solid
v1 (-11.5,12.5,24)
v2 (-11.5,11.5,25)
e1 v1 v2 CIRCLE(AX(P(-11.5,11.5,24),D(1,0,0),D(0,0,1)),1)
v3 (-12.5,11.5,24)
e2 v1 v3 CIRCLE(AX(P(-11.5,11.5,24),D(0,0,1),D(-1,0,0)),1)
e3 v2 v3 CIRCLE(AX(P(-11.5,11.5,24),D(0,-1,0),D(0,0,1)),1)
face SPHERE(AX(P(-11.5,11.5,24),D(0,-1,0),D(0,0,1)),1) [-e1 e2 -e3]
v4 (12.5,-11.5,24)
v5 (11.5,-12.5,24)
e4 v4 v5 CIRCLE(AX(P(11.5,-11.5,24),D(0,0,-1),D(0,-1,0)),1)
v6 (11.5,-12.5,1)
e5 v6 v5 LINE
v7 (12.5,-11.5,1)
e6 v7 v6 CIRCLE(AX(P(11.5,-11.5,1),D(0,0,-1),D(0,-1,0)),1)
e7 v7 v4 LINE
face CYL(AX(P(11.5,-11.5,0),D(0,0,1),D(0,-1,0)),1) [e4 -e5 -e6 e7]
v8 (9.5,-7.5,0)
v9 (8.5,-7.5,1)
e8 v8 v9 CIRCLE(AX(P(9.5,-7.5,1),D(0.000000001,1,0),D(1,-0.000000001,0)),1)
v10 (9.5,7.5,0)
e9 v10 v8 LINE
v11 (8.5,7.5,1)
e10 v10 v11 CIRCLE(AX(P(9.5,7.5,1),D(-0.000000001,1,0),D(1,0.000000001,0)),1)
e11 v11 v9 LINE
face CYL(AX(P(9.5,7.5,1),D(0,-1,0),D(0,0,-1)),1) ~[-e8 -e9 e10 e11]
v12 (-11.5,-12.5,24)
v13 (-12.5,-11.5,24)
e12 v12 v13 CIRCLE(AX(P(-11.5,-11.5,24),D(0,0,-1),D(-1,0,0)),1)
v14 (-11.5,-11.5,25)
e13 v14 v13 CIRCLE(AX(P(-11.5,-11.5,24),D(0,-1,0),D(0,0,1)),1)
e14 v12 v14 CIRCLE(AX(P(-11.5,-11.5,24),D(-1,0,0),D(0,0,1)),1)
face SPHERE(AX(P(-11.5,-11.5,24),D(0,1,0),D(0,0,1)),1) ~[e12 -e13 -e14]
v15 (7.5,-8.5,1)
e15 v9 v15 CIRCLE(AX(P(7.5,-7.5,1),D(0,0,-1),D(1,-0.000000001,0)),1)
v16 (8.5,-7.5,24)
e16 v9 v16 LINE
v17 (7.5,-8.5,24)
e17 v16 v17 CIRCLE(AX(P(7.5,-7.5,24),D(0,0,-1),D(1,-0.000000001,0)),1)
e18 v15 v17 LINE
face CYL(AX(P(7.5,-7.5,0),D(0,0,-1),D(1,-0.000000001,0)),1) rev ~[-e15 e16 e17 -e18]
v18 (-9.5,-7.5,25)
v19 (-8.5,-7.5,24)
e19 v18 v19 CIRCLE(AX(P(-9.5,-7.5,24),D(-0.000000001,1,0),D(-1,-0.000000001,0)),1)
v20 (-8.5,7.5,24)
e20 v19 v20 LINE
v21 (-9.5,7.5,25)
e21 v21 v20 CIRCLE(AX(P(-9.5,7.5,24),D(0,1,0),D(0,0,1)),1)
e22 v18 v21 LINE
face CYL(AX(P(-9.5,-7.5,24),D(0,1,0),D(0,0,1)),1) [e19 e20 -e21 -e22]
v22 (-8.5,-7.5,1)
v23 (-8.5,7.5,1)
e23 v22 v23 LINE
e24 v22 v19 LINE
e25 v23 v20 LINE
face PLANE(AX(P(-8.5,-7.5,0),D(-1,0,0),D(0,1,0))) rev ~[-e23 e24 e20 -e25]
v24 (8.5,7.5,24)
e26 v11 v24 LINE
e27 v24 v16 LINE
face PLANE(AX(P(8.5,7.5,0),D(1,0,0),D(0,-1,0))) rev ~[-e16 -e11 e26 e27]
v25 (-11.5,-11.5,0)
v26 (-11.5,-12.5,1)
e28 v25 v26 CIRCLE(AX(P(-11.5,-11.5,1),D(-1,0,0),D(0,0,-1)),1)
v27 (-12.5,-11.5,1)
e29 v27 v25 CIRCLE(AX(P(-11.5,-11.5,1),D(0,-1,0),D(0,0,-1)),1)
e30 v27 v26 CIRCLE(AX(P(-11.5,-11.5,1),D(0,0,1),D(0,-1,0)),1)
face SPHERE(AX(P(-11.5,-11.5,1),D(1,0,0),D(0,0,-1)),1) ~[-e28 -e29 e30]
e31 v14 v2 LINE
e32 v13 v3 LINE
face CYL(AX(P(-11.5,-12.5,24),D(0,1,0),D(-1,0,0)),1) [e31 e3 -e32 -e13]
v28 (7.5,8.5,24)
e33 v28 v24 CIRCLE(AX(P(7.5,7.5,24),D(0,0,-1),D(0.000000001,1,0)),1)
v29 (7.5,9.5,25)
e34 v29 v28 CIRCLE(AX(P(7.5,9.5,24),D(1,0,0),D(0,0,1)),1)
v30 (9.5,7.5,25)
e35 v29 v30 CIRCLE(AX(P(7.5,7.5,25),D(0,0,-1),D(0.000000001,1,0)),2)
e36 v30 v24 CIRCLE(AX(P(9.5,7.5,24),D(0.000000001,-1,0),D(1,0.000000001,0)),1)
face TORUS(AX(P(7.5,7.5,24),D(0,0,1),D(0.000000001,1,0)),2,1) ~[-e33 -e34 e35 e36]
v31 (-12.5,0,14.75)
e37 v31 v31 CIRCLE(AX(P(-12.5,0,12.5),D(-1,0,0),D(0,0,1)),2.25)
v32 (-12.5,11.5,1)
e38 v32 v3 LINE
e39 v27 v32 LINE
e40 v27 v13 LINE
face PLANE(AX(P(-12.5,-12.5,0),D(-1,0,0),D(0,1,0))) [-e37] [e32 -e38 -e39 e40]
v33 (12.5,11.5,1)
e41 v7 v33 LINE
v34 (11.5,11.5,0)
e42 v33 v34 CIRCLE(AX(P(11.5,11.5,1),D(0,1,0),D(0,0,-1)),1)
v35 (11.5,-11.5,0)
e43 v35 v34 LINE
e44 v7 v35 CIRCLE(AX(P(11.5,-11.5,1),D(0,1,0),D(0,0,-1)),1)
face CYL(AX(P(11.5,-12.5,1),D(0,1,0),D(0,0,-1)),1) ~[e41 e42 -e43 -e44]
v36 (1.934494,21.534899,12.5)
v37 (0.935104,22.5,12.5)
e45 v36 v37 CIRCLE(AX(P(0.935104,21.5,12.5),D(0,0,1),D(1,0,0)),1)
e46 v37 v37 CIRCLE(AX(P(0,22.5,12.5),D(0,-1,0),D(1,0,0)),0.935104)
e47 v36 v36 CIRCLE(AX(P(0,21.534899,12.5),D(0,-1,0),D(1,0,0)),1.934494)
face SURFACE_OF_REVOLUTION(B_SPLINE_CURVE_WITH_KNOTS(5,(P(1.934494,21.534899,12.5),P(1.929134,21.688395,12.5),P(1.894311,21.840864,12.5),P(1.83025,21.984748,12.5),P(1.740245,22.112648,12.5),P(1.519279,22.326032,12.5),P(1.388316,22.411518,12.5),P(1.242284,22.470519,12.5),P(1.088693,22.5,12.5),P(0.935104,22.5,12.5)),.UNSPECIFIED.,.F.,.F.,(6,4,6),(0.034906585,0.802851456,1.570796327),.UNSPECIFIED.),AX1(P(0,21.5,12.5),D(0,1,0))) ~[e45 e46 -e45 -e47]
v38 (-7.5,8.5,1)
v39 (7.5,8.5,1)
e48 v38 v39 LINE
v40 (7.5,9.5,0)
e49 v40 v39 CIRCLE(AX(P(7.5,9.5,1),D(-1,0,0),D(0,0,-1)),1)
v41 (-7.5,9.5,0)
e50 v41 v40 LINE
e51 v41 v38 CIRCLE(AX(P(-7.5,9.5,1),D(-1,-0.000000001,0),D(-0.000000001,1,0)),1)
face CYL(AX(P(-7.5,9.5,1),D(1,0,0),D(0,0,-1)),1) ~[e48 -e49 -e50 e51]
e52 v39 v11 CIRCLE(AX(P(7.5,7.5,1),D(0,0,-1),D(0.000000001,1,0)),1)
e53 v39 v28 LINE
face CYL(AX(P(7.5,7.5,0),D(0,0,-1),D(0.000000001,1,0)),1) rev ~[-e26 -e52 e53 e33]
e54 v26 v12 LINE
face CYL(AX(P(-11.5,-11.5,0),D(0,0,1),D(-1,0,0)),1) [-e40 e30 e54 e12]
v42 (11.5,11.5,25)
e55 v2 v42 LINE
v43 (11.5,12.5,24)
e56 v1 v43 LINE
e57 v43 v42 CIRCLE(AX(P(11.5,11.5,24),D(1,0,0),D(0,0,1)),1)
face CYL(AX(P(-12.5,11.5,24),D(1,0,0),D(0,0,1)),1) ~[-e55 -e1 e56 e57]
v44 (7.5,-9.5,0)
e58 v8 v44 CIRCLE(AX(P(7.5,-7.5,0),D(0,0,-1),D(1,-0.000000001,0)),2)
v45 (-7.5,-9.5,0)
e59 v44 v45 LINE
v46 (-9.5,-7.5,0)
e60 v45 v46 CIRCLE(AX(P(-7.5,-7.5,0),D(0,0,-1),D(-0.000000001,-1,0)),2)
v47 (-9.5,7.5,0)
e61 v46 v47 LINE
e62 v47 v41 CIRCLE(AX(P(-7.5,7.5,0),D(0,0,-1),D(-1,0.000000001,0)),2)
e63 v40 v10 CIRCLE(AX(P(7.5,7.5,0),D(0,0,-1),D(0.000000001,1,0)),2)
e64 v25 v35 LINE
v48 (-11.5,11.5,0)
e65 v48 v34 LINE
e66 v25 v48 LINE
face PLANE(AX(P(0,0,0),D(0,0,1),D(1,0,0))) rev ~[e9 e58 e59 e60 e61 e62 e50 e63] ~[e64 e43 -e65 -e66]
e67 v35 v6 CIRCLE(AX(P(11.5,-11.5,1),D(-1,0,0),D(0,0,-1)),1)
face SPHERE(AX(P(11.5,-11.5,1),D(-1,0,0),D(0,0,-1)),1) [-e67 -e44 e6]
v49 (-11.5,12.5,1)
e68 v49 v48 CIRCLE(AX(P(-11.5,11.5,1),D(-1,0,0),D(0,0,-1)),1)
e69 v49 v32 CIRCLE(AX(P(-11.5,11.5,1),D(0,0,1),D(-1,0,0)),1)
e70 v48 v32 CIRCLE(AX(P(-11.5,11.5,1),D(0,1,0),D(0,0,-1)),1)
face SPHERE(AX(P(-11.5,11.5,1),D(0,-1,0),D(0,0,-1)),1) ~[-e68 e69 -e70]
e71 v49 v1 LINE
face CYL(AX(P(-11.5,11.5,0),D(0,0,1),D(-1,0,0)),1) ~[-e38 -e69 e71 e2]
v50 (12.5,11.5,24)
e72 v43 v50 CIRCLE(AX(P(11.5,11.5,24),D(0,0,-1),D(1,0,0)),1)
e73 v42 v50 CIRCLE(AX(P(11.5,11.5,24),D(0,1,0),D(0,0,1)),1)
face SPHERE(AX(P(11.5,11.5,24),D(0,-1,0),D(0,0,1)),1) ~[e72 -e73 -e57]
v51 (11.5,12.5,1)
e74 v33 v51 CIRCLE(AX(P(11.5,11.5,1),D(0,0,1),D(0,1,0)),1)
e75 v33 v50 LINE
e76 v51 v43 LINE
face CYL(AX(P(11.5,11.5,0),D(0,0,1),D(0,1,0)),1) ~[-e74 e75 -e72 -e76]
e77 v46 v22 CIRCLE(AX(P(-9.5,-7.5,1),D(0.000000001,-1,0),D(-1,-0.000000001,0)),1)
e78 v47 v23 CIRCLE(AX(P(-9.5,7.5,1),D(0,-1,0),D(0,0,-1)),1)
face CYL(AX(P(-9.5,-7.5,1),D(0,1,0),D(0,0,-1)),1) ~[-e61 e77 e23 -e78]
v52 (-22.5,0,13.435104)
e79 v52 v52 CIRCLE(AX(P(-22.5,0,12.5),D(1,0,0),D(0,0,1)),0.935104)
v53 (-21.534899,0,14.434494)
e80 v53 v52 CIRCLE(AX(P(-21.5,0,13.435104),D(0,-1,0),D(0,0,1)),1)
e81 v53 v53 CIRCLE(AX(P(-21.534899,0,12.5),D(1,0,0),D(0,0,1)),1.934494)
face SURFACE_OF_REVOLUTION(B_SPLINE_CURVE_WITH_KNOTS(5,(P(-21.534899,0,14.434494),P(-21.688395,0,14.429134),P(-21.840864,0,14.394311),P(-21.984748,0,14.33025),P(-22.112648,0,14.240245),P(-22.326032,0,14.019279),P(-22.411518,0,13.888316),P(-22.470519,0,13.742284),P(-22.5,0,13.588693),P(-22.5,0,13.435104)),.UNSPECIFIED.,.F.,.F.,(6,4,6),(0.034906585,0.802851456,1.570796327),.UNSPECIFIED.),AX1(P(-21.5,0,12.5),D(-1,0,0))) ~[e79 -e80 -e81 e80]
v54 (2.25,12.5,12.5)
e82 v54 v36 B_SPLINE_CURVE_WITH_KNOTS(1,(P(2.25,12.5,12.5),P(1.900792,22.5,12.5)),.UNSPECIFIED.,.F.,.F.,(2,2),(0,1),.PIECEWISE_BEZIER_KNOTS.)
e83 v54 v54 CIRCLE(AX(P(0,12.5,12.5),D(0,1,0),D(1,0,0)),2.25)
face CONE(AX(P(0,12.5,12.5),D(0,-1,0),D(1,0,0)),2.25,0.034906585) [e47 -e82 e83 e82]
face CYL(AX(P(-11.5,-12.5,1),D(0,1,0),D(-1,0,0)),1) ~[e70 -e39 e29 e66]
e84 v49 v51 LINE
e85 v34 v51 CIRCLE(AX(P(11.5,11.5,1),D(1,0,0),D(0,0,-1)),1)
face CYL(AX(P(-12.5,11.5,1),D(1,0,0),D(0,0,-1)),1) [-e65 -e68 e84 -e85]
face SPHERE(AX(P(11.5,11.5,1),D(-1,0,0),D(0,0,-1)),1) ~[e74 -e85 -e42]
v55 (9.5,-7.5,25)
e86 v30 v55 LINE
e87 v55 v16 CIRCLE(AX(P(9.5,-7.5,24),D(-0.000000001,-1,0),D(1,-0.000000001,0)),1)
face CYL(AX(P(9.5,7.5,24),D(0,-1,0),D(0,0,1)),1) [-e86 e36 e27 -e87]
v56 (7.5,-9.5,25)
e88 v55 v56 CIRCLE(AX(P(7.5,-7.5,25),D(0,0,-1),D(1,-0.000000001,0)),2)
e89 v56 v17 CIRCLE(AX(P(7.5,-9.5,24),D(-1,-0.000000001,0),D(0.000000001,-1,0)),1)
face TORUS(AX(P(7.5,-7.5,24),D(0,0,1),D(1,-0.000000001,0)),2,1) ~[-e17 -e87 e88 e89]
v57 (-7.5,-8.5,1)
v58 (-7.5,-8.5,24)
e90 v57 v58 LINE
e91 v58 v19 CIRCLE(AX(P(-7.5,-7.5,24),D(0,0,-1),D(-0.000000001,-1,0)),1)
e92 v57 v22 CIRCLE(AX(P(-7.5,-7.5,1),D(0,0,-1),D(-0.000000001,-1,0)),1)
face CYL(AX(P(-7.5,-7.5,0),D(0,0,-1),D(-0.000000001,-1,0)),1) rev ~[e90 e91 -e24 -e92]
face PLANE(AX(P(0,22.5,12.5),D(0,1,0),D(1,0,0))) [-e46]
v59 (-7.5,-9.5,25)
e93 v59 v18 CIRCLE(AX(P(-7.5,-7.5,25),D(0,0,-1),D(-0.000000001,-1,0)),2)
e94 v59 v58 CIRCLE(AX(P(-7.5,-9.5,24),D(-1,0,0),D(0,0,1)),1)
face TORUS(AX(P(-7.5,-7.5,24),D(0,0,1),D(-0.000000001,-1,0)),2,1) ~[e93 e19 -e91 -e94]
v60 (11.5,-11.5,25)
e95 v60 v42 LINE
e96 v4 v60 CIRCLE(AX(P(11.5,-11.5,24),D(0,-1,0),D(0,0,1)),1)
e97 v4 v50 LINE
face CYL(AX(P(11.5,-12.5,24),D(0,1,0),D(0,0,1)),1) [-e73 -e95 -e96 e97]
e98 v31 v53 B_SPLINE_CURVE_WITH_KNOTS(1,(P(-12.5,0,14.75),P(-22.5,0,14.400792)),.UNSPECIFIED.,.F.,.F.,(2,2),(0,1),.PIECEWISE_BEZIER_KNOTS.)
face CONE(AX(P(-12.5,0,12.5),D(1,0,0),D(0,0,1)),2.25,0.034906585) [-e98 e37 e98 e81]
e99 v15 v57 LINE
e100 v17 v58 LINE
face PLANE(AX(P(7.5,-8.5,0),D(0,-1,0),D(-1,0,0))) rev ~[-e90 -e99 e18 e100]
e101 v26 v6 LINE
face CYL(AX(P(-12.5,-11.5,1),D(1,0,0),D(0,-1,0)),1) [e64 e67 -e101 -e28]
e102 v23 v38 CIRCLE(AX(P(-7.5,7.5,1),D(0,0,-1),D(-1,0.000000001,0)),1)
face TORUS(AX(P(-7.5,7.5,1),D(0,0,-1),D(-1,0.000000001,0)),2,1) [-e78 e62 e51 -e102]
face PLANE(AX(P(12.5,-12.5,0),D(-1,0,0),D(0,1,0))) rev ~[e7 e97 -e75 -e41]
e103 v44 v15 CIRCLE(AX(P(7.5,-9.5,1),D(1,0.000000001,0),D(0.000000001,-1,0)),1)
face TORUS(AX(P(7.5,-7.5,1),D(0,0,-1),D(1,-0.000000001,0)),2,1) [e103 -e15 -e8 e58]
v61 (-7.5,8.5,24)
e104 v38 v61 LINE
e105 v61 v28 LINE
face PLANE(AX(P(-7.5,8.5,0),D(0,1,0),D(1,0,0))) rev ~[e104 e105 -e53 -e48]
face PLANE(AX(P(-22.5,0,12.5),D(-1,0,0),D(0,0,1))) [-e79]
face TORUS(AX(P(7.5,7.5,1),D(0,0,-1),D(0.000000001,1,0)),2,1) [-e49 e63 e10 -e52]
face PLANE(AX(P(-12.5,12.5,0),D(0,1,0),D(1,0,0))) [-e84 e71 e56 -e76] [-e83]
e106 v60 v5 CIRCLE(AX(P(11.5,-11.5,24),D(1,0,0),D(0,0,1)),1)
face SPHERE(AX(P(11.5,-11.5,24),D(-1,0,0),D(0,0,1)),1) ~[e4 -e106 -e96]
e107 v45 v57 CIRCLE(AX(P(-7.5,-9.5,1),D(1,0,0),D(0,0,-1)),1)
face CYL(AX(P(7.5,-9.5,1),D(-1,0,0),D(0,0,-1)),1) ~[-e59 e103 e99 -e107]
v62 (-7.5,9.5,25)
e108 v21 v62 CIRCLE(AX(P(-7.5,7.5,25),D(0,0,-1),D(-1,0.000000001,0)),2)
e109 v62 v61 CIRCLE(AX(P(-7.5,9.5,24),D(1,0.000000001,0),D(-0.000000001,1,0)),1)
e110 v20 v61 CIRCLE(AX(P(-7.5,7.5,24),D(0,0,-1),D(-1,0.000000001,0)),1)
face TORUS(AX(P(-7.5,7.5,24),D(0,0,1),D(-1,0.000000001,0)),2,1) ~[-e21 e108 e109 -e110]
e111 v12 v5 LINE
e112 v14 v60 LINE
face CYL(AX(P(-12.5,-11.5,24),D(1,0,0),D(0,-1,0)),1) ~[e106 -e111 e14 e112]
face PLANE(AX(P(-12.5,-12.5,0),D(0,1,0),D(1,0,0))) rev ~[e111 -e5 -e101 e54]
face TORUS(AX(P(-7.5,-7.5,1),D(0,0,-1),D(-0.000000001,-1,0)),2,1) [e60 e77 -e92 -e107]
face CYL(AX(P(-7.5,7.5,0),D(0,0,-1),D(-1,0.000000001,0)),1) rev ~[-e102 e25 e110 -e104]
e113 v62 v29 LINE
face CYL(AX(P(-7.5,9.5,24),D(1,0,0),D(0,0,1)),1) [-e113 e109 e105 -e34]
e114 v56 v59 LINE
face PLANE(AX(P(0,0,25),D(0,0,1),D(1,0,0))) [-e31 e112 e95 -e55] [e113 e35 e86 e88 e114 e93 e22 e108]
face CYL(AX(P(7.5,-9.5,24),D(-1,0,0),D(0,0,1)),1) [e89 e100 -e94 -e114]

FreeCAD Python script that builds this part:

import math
import FreeCAD as App
import Part
import Sketcher

V = App.Vector
Q = App.Units.Quantity


def edges_at(feature, points):
    """Names of the edges that pass closest to the given points."""
    edges = feature.Shape.Edges
    near = lambda p: min(range(len(edges)), key=lambda i: edges[i].distToShape(Part.Vertex(*p))[0])
    return sorted({f"Edge{near(p) + 1}" for p in points})


def add_polygon(sketch, points):
    """Adds a closed chain of lines whose ends are joined by coincident constraints."""
    first, n = sketch.GeometryCount, len(points)
    for a, b in zip(points, points[1:] + points[:1]):
        sketch.addGeometry(Part.LineSegment(App.Vector(*a, 0), App.Vector(*b, 0)), False)
    for i in range(n):
        sketch.addConstraint(Sketcher.Constraint("Coincident", first + i, 2, first + (i + 1) % n, 1))

doc = App.newDocument("Part")
body = doc.addObject("PartDesign::Body", "Body")

sketch1 = body.newObject("Sketcher::SketchObject", "Sketch")
sketch1.AttachmentSupport = (doc.getObject("XY_Plane"), [""])
sketch1.MapMode = "FlatFace"
add_polygon(sketch1, [(-12.5, 12.5), (-12.5, -12.5), (12.5, -12.5), (12.5, 12.5)])
sketch1.addConstraint([
    Sketcher.Constraint("Vertical", 0),
    Sketcher.Constraint("Horizontal", 1),
    Sketcher.Constraint("Vertical", 2),
    Sketcher.Constraint("Horizontal", 3),
    Sketcher.Constraint("Symmetric", 0, 2, 2, 2, -1, 1),
    Sketcher.Constraint("Equal", 3, 0),
    Sketcher.Constraint("DistanceX", 1, 1, 1, 2, Q("25 mm")),
])
pad1 = body.newObject("PartDesign::Pad", "Pad")
pad1.Profile = sketch1
pad1.Length = 25

sketch2 = body.newObject("Sketcher::SketchObject", "Sketch001")
sketch2.AttachmentSupport = (doc.getObject("YZ_Plane"), [""])
sketch2.MapMode = "FlatFace"
sketch2.AttachmentOffset = App.Placement(V(0, 0, -12.5), App.Rotation())
sketch2.addGeometry(Part.Circle(V(0, 12.5, 0), V(0, 0, 1), 2.25), False)
sketch2.addConstraint([
    Sketcher.Constraint("PointOnObject", 0, 3, -2),
    Sketcher.Constraint("Diameter", 0, Q("4.5 mm")),
    Sketcher.Constraint("DistanceY", -1, 1, 0, 3, Q("12.5 mm")),
])
pad2 = body.newObject("PartDesign::Pad", "Pad001")
pad2.Profile = sketch2
pad2.Length = 10
pad2.Reversed = True
pad2.TaperAngle = -2

sketch3 = body.newObject("Sketcher::SketchObject", "Sketch002")
sketch3.AttachmentSupport = (doc.getObject("XZ_Plane"), [""])
sketch3.MapMode = "FlatFace"
sketch3.AttachmentOffset = App.Placement(V(0, 0, -12.5), App.Rotation())
sketch3.addGeometry(Part.Circle(V(0, 12.5, 0), V(0, 0, 1), 2.25), False)
sketch3.addConstraint([
    Sketcher.Constraint("PointOnObject", 0, 3, -2),
    Sketcher.Constraint("Diameter", 0, Q("4.5 mm")),
    Sketcher.Constraint("DistanceY", -1, 1, 0, 3, Q("12.5 mm")),
])
pad3 = body.newObject("PartDesign::Pad", "Pad002")
pad3.Profile = sketch3
pad3.Length = 10
pad3.Reversed = True
pad3.TaperAngle = -2

sketch4 = body.newObject("Sketcher::SketchObject", "Sketch003")
sketch4.AttachmentSupport = (doc.getObject("XY_Plane"), [""])
sketch4.MapMode = "FlatFace"
sketch4.addGeometry([
    Part.LineSegment(V(7.5, -8.5, 0), V(-7.5, -8.5, 0)),
    Part.ArcOfCircle(Part.Circle(V(-7.5, -7.5, 0), V(0, 0, 1), 1), math.radians(-180), math.radians(-90)),
    Part.LineSegment(V(-8.5, -7.5, 0), V(-8.5, 7.5, 0)),
    Part.ArcOfCircle(Part.Circle(V(-7.5, 7.5, 0), V(0, 0, 1), 1), math.radians(90), math.radians(180)),
    Part.LineSegment(V(-7.5, 8.5, 0), V(7.5, 8.5, 0)),
    Part.ArcOfCircle(Part.Circle(V(7.5, 7.5, 0), V(0, 0, 1), 1), math.radians(0), math.radians(90)),
    Part.LineSegment(V(8.5, 7.5, 0), V(8.5, -7.5, 0)),
    Part.ArcOfCircle(Part.Circle(V(7.5, -7.5, 0), V(0, 0, 1), 1), math.radians(-90), math.radians(0)),
], False)
sketch4.addConstraint([
    Sketcher.Constraint("Tangent", 0, 2, 1, 2),
    Sketcher.Constraint("Tangent", 1, 1, 2, 1),
    Sketcher.Constraint("Tangent", 2, 2, 3, 2),
    Sketcher.Constraint("Tangent", 3, 1, 4, 1),
    Sketcher.Constraint("Tangent", 4, 2, 5, 2),
    Sketcher.Constraint("Tangent", 5, 1, 6, 1),
    Sketcher.Constraint("Tangent", 6, 2, 7, 2),
    Sketcher.Constraint("Tangent", 7, 1, 0, 1),
    Sketcher.Constraint("Horizontal", 0),
    Sketcher.Constraint("Vertical", 2),
    Sketcher.Constraint("Horizontal", 4),
    Sketcher.Constraint("Vertical", 6),
    Sketcher.Constraint("Equal", 1, 3),
    Sketcher.Constraint("Equal", 3, 5),
    Sketcher.Constraint("Equal", 5, 7),
    Sketcher.Constraint("Symmetric", 1, 3, 5, 3, -1, 1),
    Sketcher.Constraint("Equal", 4, 2),
    Sketcher.Constraint("Radius", 1, Q("1 mm")),
    Sketcher.Constraint("DistanceX", 0, 2, 0, 1, Q("15 mm")),
])
pocket1 = body.newObject("PartDesign::Pocket", "Pocket")
pocket1.Profile = sketch4
pocket1.Length = 25
pocket1.Reversed = True
doc.recompute()

fillet = body.newObject("PartDesign::Fillet", "Fillet")
fillet.Base = (pocket1, edges_at(pocket1, [
    (-12.5, 0, 25),
    (0, -12.5, 25),
    (-22.5, 0, 10.599),
    (-1.901, 22.5, 12.5),
    (8.207, -8.207, 0),
    (0, -8.5, 0),
    (-8.207, -8.207, 0),
    (-8.5, 0, 0),
    (-8.207, 8.207, 0),
    (0, 8.5, 0),
    (8.207, 8.207, 0),
    (8.5, 0, 0),
    (8.207, -8.207, 25),
    (8.5, 0, 25),
    (8.207, 8.207, 25),
    (0, 8.5, 25),
    (-8.207, 8.207, 25),
    (-8.5, 0, 25),
    (-8.207, -8.207, 25),
    (0, -8.5, 25),
    (12.5, 0, 25),
    (0, -12.5, 0),
    (-12.5, 0, 0),
    (0, 12.5, 0),
    (12.5, 0, 0),
    (0, 12.5, 25),
    (12.5, -12.5, 12.5),
    (-12.5, -12.5, 12.5),
    (-12.5, 12.5, 12.5),
    (12.5, 12.5, 12.5),
]))
fillet.Radius = 1

doc.recompute()
